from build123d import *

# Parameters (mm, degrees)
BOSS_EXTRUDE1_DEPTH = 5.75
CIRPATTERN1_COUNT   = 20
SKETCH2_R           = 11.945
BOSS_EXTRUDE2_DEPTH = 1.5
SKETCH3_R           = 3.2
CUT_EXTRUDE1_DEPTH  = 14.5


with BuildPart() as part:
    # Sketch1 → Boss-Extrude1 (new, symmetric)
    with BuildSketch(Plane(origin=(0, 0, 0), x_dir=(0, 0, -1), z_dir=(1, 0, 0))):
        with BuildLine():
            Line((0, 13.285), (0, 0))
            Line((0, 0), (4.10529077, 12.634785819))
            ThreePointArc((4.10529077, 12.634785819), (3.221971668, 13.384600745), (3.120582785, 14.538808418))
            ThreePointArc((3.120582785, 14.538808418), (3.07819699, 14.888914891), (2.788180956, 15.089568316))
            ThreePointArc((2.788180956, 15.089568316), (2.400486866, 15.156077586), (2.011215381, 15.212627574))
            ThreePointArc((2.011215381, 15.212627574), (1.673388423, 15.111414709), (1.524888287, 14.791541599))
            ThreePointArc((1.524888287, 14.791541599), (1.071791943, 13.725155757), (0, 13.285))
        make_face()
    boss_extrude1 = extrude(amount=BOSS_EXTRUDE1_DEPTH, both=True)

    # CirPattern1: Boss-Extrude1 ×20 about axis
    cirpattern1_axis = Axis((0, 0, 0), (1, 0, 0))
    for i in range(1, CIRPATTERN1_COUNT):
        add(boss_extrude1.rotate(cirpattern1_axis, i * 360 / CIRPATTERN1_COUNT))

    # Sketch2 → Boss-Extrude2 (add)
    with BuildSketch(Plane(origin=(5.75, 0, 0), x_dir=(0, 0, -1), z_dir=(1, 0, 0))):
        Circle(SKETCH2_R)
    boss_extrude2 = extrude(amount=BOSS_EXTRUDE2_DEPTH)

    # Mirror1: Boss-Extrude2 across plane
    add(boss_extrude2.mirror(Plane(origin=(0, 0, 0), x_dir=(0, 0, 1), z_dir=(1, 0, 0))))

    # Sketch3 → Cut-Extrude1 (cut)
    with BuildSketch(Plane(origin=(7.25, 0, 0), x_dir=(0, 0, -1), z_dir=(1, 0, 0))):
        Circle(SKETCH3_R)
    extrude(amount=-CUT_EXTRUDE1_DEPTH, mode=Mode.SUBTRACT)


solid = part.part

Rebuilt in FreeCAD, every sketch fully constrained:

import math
import FreeCAD as App
import Part
import Sketcher
Q = App.Units.Quantity

doc = App.newDocument("Part")
body = doc.addObject("PartDesign::Body", "Body")

# Sketch on YZ plane
sketch1 = body.newObject("Sketcher::SketchObject", "Sketch")
sketch1.AttachmentSupport = (doc.getObject("YZ_Plane"), [""])
sketch1.MapMode = "FlatFace"
sketch1.addGeometry(Part.LineSegment(App.Vector(13.29, 0, 0), App.Vector(0, 0, 0)), False)
sketch1.addGeometry(Part.LineSegment(App.Vector(0, 0, 0), App.Vector(12.63, -4.11, 0)), False)
sketch1.addGeometry(Part.ArcOfCircle(Part.Circle(App.Vector(14.09, -4.58, 0), App.Vector(0, 0, 1), 1.52), math.radians(73), math.radians(162)), False)
sketch1.addGeometry(Part.ArcOfCircle(Part.Circle(App.Vector(14.67, -2.71, 0), App.Vector(0, 0, 1), 0.43), math.radians(-107), math.radians(-10)), False)
sketch1.addGeometry(Part.ArcOfCircle(Part.Circle(App.Vector(0, 0, 0), App.Vector(0, 0, 1), 15.35), math.radians(-10.47), math.radians(-7.53)), False)
sketch1.addGeometry(Part.ArcOfCircle(Part.Circle(App.Vector(14.79, -1.95, 0), App.Vector(0, 0, 1), 0.43), math.radians(-8), math.radians(89)), False)
sketch1.addGeometry(Part.ArcOfCircle(Part.Circle(App.Vector(14.81, 0, 0), App.Vector(0, 0, 1), 1.52), math.radians(180), math.radians(269)), False)
sketch1.addConstraint(Sketcher.Constraint("Coincident", 0, 2, 1, 1))
sketch1.addConstraint(Sketcher.Constraint("Coincident", 1, 2, 2, 2))
sketch1.addConstraint(Sketcher.Constraint("Tangent", 2, 1, 3, 1))
sketch1.addConstraint(Sketcher.Constraint("Tangent", 3, 2, 4, 1))
sketch1.addConstraint(Sketcher.Constraint("Tangent", 4, 2, 5, 1))
sketch1.addConstraint(Sketcher.Constraint("Tangent", 5, 2, 6, 2))
sketch1.addConstraint(Sketcher.Constraint("Coincident", 6, 1, 0, 1))
sketch1.addConstraint(Sketcher.Constraint("Horizontal", 0))
sketch1.addConstraint(Sketcher.Constraint("Coincident", 4, 3, -1, 1))
sketch1.addConstraint(Sketcher.Constraint("Coincident", 0, 2, -1, 1))
sketch1.addConstraint(Sketcher.Constraint("Equal", 3, 5))
sketch1.addConstraint(Sketcher.Constraint("Equal", 2, 6))
sketch1.addConstraint(Sketcher.Constraint("PointOnObject", 6, 3, -1))
sketch1.addConstraint(Sketcher.Constraint("Angle", 1, Q("-18 deg")))
sketch1.addConstraint(Sketcher.Constraint("Radius", 3, 0.43))
sketch1.addConstraint(Sketcher.Constraint("Radius", 2, 1.525))
sketch1.addConstraint(Sketcher.Constraint("DistanceX", 0, 2, 0, 1, 13.285))
sketch1.addConstraint(Sketcher.Constraint("Distance", 1, 13.285))
sketch1.addConstraint(Sketcher.Constraint("Radius", 4, 15.345002))
sketch1.addConstraint(Sketcher.Constraint("DistanceY", 2, 1, 3, 2, 0.332402))
pad1 = body.newObject("PartDesign::Pad", "Pad")
pad1.Profile = sketch1
pad1.Length = 11.5
pad1.Midplane = True
doc.recompute()

polarpattern = body.newObject("PartDesign::PolarPattern", "PolarPattern")
polarpattern.Originals = [pad1]
polarpattern.Axis = (doc.getObject("X_Axis"), [""])
polarpattern.Angle = 360
polarpattern.Occurrences = 20
body.Tip = polarpattern

# Sketch on YZ plane
sketch2 = body.newObject("Sketcher::SketchObject", "Sketch001")
sketch2.AttachmentSupport = (doc.getObject("YZ_Plane"), [""])
sketch2.MapMode = "FlatFace"
sketch2.AttachmentOffset = App.Placement(App.Vector(0, 0, 5.75), App.Rotation())
sketch2.addGeometry(Part.Circle(App.Vector(0, 0, 0), App.Vector(0, 0, 1), 12), False)
sketch2.addConstraint(Sketcher.Constraint("Coincident", 0, 3, -1, 1))
sketch2.addConstraint(Sketcher.Constraint("Diameter", 0, 23.89))
pad2 = body.newObject("PartDesign::Pad", "Pad001")
pad2.Profile = sketch2
pad2.Length = 1.5
doc.recompute()

mirrored = body.newObject("PartDesign::Mirrored", "Mirrored")
mirrored.Originals = [pad2]
mirrored.MirrorPlane = (doc.getObject("YZ_Plane"), [""])
body.Tip = mirrored

# Sketch on YZ plane
sketch3 = body.newObject("Sketcher::SketchObject", "Sketch002")
sketch3.AttachmentSupport = (doc.getObject("YZ_Plane"), [""])
sketch3.MapMode = "FlatFace"
sketch3.AttachmentOffset = App.Placement(App.Vector(0, 0, 7.25), App.Rotation())
sketch3.addGeometry(Part.Circle(App.Vector(0, 0, 0), App.Vector(0, 0, 1), 3.2), False)
sketch3.addConstraint(Sketcher.Constraint("Coincident", 0, 3, -1, 1))
sketch3.addConstraint(Sketcher.Constraint("Diameter", 0, 6.4))
pocket1 = body.newObject("PartDesign::Pocket", "Pocket")
pocket1.Profile = sketch3
pocket1.Length = 14.5

doc.recompute()
